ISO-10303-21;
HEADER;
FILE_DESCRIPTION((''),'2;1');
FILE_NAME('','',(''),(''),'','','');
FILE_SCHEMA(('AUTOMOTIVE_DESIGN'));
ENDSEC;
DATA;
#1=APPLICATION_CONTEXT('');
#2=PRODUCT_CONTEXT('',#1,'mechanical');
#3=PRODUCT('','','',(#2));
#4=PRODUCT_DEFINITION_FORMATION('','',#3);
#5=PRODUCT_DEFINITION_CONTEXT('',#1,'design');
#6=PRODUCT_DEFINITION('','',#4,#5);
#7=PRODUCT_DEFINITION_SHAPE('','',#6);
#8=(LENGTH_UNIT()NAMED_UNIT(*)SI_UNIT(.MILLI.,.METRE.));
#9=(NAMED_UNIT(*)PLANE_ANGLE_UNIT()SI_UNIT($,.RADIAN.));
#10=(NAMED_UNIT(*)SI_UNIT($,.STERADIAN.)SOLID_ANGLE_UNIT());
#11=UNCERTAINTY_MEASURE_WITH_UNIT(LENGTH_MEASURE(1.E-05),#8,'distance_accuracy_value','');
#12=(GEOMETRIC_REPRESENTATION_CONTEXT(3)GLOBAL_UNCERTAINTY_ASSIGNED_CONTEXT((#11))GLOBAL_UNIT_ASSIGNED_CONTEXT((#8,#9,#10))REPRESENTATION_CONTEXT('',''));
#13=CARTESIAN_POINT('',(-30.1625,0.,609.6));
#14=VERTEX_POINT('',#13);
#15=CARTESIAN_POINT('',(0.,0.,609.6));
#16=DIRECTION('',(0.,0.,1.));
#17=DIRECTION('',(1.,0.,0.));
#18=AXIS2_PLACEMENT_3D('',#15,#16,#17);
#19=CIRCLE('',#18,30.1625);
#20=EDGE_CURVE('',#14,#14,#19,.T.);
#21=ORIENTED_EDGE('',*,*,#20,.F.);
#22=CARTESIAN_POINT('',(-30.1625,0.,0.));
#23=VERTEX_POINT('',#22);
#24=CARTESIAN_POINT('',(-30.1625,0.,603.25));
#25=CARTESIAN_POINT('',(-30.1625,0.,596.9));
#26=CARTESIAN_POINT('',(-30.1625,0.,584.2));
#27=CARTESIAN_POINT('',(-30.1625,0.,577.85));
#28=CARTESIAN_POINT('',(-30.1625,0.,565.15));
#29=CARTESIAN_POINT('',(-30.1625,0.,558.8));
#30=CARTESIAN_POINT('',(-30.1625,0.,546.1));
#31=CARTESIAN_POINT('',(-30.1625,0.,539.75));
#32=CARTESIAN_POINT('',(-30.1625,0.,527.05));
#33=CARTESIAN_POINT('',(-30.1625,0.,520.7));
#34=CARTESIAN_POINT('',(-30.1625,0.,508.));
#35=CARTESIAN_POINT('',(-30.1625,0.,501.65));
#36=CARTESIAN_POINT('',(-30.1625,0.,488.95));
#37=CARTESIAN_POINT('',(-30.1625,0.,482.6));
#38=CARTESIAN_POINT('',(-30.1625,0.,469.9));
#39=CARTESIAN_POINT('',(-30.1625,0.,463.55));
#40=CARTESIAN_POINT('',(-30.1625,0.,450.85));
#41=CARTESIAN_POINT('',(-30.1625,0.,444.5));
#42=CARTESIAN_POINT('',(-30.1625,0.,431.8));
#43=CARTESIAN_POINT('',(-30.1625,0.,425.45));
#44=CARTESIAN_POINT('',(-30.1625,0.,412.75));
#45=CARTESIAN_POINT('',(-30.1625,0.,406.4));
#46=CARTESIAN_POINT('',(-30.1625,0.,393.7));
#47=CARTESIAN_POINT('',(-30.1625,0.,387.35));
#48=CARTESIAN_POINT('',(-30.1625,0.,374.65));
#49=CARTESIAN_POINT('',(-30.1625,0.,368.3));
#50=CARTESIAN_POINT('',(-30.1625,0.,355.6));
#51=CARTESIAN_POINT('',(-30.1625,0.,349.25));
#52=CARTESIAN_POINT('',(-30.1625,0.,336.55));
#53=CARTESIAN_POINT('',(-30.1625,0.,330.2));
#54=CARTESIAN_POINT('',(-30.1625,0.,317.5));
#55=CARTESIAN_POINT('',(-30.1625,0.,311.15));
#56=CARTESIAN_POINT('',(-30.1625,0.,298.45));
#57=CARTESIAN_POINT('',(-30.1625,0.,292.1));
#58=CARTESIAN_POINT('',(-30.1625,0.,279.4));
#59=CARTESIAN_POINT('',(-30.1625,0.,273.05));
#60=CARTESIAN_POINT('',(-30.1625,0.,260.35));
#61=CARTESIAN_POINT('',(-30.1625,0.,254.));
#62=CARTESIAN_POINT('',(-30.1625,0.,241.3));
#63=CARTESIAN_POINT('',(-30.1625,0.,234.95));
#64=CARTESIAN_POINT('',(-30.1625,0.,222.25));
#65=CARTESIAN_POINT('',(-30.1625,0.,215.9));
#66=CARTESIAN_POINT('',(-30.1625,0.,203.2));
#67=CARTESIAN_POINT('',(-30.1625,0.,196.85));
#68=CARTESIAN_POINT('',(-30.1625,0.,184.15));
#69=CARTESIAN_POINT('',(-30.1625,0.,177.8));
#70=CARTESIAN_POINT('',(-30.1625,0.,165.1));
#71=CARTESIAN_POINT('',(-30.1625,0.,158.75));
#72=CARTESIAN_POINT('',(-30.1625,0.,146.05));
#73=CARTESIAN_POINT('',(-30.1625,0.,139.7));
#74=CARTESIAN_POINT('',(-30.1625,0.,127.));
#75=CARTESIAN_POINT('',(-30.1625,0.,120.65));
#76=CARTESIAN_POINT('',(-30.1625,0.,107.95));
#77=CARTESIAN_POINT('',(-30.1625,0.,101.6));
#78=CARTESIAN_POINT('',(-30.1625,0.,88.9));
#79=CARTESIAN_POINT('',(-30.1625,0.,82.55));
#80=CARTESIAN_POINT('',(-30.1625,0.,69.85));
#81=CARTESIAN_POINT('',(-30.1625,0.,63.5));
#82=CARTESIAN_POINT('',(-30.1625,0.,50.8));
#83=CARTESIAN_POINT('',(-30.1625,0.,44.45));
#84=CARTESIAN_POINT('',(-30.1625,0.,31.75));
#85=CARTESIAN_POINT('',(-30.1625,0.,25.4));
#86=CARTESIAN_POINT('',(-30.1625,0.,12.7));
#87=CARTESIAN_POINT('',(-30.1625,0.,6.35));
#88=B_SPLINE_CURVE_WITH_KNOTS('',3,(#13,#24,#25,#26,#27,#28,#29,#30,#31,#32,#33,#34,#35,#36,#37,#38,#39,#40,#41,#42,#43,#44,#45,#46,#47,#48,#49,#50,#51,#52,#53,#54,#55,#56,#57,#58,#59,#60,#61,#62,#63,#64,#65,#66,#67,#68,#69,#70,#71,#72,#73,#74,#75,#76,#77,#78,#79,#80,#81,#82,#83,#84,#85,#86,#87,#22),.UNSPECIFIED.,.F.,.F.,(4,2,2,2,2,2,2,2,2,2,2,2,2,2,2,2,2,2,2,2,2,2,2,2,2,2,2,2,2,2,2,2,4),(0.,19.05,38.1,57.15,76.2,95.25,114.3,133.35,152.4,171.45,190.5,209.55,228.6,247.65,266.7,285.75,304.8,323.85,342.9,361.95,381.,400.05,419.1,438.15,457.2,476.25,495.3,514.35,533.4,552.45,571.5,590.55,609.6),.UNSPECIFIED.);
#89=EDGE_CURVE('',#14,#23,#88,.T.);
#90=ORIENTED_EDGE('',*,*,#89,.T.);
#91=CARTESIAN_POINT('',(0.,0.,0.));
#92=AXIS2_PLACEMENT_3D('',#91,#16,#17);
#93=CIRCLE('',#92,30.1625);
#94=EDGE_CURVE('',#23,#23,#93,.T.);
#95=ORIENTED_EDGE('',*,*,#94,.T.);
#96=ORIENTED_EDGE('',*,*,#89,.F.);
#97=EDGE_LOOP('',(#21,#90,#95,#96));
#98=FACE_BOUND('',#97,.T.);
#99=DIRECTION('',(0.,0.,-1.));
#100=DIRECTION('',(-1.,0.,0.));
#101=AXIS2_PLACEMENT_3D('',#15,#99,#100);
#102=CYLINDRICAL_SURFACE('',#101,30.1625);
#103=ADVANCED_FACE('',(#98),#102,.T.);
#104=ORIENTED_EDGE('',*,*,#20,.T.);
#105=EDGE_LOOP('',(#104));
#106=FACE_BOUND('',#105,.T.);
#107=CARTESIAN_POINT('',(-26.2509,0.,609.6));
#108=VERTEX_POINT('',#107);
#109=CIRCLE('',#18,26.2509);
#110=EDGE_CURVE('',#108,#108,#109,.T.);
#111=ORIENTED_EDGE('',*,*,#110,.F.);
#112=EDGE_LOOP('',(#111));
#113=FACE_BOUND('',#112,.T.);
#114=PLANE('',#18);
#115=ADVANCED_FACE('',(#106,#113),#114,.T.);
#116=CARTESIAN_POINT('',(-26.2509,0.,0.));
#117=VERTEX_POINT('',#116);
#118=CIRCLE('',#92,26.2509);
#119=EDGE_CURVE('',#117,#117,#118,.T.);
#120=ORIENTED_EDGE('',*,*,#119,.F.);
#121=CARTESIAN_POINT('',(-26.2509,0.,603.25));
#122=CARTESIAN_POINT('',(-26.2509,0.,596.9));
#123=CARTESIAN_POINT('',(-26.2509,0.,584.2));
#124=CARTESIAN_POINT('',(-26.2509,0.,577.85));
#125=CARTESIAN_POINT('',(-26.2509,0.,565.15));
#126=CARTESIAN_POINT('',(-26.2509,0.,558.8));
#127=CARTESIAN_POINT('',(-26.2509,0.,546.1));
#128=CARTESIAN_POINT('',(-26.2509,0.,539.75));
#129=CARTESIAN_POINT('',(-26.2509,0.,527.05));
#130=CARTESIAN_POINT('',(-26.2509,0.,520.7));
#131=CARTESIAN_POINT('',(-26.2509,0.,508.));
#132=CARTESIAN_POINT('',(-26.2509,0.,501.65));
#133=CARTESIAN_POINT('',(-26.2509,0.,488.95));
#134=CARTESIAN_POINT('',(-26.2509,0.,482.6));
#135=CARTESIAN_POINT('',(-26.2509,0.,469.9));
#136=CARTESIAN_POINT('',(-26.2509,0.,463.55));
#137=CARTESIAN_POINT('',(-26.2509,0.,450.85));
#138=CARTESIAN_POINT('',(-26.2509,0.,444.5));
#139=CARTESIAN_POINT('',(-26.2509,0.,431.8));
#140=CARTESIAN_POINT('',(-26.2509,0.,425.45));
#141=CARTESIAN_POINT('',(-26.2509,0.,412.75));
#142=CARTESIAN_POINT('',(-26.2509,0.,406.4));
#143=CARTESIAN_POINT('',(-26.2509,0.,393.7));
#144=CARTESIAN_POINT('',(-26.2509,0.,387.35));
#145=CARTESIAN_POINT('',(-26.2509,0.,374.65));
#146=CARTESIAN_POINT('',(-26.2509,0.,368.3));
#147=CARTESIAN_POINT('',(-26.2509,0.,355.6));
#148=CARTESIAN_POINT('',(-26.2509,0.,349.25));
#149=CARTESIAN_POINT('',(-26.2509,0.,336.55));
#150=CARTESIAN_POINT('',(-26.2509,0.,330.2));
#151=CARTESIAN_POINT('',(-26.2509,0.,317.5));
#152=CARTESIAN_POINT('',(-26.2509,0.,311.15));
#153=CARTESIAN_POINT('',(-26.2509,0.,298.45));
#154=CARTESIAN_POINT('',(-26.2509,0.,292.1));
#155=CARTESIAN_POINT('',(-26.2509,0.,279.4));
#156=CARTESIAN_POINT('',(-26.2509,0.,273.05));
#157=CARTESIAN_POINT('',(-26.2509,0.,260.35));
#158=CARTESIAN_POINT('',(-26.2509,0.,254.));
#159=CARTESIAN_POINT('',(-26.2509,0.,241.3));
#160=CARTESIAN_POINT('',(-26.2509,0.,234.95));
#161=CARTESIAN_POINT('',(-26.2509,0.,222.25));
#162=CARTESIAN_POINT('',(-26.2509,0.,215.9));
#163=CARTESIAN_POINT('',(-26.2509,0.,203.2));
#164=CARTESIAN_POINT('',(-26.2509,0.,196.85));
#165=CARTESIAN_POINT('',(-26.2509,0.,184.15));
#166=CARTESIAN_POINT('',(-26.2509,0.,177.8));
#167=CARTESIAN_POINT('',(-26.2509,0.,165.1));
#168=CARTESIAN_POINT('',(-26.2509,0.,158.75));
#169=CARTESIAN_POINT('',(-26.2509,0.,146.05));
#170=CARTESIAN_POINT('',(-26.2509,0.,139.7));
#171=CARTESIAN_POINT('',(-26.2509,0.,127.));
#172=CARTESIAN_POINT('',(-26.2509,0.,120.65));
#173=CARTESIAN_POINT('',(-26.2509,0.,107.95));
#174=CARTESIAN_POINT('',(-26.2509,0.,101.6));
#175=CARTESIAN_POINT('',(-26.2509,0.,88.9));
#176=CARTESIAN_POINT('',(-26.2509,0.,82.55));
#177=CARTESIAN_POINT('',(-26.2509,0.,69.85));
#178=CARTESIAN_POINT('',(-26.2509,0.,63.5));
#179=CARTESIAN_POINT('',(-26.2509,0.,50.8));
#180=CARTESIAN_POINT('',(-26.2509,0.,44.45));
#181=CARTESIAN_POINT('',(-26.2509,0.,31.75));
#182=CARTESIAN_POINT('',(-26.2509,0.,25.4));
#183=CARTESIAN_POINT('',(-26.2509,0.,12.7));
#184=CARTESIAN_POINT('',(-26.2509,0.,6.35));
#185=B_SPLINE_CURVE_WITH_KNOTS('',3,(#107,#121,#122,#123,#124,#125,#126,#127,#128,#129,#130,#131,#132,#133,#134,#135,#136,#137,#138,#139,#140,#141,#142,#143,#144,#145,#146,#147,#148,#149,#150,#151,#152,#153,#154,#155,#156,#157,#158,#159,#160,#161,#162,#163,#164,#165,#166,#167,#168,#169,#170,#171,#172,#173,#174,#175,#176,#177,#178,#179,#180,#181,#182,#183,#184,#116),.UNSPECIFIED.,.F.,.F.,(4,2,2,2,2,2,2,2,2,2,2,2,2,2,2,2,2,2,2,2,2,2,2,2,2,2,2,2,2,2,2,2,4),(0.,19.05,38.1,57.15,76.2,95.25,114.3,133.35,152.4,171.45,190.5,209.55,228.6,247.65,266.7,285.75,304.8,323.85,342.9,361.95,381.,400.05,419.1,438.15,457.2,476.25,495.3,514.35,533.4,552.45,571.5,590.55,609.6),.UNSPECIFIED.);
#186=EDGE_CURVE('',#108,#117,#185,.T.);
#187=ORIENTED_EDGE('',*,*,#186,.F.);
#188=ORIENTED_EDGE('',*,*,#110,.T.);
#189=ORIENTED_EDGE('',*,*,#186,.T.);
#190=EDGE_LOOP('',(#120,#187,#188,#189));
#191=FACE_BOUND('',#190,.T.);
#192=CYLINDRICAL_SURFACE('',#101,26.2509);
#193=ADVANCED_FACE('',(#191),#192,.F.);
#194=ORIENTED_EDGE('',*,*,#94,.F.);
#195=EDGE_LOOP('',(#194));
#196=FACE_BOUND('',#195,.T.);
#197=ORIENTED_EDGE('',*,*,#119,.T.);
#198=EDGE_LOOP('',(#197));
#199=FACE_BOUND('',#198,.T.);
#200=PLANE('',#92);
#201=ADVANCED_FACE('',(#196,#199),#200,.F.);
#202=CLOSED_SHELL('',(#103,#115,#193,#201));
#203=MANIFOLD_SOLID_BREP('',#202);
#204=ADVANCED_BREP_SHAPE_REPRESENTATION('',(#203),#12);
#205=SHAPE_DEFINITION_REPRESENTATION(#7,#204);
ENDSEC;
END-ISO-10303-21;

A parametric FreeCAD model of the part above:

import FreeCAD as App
import Part
import Sketcher
Q = App.Units.Quantity

doc = App.newDocument("Part")
body = doc.addObject("PartDesign::Body", "Body")

# Sketch on XY plane
sketch1 = body.newObject("Sketcher::SketchObject", "Sketch")
sketch1.AttachmentSupport = (doc.getObject("XY_Plane"), [""])
sketch1.MapMode = "FlatFace"
sketch1.addGeometry([
    Part.Circle(App.Vector(0, 0, 0), App.Vector(0, 0, 1), 30),
    Part.Circle(App.Vector(0, 0, 0), App.Vector(0, 0, 1), 26),
], False)
sketch1.addConstraint([
    Sketcher.Constraint("Coincident", 0, 3, -1, 1),
    Sketcher.Constraint("Coincident", 1, 3, -1, 1),
    Sketcher.Constraint("Diameter", 0, Q("2.375 in")),
    Sketcher.Constraint("Diameter", 1, Q("2.067 in")),
])
pad1 = body.newObject("PartDesign::Pad", "Pad")
pad1.Profile = sketch1
pad1.Length = Q("24 in")

doc.recompute()
